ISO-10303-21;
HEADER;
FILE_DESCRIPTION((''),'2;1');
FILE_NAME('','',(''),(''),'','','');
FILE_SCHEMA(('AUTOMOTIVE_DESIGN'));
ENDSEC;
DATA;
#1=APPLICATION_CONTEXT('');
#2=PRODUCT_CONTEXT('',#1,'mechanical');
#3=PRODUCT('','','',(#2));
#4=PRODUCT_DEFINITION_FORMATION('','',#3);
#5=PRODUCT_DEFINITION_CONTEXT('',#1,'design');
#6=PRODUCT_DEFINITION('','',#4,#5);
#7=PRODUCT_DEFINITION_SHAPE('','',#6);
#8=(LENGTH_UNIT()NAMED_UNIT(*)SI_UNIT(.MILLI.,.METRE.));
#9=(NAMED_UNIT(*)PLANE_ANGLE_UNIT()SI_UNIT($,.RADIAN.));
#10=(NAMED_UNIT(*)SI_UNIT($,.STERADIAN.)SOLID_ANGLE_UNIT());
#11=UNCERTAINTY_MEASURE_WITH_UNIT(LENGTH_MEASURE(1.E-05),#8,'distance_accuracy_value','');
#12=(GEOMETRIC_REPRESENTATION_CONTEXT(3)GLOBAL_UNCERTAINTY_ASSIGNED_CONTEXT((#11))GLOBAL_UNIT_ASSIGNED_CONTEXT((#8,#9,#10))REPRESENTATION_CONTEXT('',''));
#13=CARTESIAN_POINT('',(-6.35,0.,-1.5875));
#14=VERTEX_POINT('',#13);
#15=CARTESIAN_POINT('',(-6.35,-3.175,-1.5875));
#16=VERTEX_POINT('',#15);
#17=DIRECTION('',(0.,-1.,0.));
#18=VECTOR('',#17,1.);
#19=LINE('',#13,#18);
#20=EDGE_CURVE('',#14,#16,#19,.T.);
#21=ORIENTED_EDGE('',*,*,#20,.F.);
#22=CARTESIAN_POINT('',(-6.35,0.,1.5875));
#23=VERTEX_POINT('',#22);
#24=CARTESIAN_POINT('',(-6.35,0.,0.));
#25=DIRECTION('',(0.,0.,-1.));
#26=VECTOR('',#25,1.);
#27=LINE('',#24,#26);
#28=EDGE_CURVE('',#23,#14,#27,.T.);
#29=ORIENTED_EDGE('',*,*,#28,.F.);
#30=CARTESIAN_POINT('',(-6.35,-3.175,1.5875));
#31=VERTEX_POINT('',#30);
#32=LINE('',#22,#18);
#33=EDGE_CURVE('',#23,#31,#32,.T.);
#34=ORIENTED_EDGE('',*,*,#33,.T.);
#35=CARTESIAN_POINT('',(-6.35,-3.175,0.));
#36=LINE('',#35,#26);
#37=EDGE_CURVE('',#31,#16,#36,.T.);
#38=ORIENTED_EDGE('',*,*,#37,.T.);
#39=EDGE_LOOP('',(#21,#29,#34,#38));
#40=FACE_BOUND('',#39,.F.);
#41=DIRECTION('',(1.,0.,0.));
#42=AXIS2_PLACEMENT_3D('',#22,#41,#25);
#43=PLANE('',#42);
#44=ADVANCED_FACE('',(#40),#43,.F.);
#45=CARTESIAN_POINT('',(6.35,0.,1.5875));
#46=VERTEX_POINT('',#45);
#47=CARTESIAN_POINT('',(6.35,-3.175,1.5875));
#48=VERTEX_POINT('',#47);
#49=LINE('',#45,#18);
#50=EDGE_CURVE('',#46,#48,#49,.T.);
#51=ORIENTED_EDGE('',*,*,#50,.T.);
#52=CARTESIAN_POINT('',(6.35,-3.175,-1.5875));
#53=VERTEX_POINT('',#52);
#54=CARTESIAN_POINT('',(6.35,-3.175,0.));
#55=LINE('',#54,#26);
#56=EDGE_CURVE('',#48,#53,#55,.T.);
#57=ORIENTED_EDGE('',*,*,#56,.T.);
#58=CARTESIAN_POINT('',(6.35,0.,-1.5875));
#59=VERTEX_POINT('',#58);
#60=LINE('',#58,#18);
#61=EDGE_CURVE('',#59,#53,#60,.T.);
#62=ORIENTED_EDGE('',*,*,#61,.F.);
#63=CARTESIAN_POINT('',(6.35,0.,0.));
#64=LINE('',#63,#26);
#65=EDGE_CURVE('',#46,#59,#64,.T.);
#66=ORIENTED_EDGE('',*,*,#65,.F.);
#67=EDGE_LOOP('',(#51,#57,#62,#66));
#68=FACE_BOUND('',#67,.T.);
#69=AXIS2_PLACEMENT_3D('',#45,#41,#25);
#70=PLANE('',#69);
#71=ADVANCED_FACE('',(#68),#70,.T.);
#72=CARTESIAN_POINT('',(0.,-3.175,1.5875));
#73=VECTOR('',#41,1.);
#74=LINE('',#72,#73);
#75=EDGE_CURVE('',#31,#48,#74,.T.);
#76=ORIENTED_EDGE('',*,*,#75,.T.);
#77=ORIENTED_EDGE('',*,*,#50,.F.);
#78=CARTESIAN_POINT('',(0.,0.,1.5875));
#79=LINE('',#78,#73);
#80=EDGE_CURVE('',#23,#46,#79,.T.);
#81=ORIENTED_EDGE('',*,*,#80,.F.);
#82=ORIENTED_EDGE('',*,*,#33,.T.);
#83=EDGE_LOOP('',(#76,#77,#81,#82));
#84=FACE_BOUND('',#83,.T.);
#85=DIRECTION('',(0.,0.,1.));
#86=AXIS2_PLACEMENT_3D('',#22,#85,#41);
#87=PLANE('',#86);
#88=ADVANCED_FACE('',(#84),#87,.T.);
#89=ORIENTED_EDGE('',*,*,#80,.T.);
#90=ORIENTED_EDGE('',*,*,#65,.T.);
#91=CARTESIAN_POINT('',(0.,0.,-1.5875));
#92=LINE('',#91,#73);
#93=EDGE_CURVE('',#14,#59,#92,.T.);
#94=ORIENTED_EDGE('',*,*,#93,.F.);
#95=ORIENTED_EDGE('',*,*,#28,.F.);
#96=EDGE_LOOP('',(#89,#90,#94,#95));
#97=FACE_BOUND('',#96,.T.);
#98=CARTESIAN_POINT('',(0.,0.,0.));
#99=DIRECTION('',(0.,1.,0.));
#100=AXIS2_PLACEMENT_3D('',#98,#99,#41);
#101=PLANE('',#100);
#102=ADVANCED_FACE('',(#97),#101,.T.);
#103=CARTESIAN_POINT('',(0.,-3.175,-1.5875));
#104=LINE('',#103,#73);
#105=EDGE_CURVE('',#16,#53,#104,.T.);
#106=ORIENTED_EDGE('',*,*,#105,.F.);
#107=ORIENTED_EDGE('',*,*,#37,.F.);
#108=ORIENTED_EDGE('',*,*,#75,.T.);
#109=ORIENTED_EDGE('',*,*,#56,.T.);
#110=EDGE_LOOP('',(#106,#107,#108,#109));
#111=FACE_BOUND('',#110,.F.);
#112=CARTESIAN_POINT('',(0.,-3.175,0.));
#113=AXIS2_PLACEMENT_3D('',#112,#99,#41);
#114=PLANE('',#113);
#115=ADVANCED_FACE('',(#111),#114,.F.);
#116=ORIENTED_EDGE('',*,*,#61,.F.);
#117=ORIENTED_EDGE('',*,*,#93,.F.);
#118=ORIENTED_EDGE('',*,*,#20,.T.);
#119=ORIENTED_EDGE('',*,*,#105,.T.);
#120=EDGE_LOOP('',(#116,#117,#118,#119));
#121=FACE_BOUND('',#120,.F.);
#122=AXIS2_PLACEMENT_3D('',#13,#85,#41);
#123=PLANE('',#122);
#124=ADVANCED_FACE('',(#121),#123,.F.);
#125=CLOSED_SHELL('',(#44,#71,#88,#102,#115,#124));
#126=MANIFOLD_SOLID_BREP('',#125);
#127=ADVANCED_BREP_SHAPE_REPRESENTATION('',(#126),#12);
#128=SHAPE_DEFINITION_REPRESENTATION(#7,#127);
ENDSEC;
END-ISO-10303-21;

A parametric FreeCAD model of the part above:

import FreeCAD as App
import Part
import Sketcher

V = App.Vector
Q = App.Units.Quantity

doc = App.newDocument("Part")
body = doc.addObject("PartDesign::Body", "Body")

sketch1 = doc.addObject("Sketcher::SketchObject", "Sketch")
body.addObject(sketch1)
sketch1.AttachmentSupport = (doc.XZ_Plane, [""])
sketch1.MapMode = "FlatFace"
sketch1.addGeometry(Part.LineSegment(V(-6.3, -1.6, 0), V(-6.3, 1.6, 0)), False)
sketch1.addGeometry(Part.LineSegment(V(-6.3, 1.6, 0), V(6.3, 1.6, 0)), False)
sketch1.addGeometry(Part.LineSegment(V(6.3, 1.6, 0), V(6.3, -1.6, 0)), False)
sketch1.addGeometry(Part.LineSegment(V(6.3, -1.6, 0), V(-6.3, -1.6, 0)), False)
sketch1.addConstraint(Sketcher.Constraint("Coincident", 0, 2, 1, 1))
sketch1.addConstraint(Sketcher.Constraint("Coincident", 1, 2, 2, 1))
sketch1.addConstraint(Sketcher.Constraint("Coincident", 2, 2, 3, 1))
sketch1.addConstraint(Sketcher.Constraint("Coincident", 3, 2, 0, 1))
sketch1.addConstraint(Sketcher.Constraint("Vertical", 0))
sketch1.addConstraint(Sketcher.Constraint("Horizontal", 1))
sketch1.addConstraint(Sketcher.Constraint("Vertical", 2))
sketch1.addConstraint(Sketcher.Constraint("Horizontal", 3))
sketch1.addConstraint(Sketcher.Constraint("Symmetric", 0, 2, 2, 2, -1, 1))
sketch1.addConstraint(Sketcher.Constraint("DistanceX", 1, 1, 1, 2, Q("0.5 in")))
sketch1.addConstraint(Sketcher.Constraint("DistanceY", 0, 1, 0, 2, Q("0.125 in")))
pad1 = doc.addObject("PartDesign::Pad", "Pad")
body.addObject(pad1)
pad1.Profile = sketch1
pad1.Length = Q("0.125 in")

doc.recompute()
